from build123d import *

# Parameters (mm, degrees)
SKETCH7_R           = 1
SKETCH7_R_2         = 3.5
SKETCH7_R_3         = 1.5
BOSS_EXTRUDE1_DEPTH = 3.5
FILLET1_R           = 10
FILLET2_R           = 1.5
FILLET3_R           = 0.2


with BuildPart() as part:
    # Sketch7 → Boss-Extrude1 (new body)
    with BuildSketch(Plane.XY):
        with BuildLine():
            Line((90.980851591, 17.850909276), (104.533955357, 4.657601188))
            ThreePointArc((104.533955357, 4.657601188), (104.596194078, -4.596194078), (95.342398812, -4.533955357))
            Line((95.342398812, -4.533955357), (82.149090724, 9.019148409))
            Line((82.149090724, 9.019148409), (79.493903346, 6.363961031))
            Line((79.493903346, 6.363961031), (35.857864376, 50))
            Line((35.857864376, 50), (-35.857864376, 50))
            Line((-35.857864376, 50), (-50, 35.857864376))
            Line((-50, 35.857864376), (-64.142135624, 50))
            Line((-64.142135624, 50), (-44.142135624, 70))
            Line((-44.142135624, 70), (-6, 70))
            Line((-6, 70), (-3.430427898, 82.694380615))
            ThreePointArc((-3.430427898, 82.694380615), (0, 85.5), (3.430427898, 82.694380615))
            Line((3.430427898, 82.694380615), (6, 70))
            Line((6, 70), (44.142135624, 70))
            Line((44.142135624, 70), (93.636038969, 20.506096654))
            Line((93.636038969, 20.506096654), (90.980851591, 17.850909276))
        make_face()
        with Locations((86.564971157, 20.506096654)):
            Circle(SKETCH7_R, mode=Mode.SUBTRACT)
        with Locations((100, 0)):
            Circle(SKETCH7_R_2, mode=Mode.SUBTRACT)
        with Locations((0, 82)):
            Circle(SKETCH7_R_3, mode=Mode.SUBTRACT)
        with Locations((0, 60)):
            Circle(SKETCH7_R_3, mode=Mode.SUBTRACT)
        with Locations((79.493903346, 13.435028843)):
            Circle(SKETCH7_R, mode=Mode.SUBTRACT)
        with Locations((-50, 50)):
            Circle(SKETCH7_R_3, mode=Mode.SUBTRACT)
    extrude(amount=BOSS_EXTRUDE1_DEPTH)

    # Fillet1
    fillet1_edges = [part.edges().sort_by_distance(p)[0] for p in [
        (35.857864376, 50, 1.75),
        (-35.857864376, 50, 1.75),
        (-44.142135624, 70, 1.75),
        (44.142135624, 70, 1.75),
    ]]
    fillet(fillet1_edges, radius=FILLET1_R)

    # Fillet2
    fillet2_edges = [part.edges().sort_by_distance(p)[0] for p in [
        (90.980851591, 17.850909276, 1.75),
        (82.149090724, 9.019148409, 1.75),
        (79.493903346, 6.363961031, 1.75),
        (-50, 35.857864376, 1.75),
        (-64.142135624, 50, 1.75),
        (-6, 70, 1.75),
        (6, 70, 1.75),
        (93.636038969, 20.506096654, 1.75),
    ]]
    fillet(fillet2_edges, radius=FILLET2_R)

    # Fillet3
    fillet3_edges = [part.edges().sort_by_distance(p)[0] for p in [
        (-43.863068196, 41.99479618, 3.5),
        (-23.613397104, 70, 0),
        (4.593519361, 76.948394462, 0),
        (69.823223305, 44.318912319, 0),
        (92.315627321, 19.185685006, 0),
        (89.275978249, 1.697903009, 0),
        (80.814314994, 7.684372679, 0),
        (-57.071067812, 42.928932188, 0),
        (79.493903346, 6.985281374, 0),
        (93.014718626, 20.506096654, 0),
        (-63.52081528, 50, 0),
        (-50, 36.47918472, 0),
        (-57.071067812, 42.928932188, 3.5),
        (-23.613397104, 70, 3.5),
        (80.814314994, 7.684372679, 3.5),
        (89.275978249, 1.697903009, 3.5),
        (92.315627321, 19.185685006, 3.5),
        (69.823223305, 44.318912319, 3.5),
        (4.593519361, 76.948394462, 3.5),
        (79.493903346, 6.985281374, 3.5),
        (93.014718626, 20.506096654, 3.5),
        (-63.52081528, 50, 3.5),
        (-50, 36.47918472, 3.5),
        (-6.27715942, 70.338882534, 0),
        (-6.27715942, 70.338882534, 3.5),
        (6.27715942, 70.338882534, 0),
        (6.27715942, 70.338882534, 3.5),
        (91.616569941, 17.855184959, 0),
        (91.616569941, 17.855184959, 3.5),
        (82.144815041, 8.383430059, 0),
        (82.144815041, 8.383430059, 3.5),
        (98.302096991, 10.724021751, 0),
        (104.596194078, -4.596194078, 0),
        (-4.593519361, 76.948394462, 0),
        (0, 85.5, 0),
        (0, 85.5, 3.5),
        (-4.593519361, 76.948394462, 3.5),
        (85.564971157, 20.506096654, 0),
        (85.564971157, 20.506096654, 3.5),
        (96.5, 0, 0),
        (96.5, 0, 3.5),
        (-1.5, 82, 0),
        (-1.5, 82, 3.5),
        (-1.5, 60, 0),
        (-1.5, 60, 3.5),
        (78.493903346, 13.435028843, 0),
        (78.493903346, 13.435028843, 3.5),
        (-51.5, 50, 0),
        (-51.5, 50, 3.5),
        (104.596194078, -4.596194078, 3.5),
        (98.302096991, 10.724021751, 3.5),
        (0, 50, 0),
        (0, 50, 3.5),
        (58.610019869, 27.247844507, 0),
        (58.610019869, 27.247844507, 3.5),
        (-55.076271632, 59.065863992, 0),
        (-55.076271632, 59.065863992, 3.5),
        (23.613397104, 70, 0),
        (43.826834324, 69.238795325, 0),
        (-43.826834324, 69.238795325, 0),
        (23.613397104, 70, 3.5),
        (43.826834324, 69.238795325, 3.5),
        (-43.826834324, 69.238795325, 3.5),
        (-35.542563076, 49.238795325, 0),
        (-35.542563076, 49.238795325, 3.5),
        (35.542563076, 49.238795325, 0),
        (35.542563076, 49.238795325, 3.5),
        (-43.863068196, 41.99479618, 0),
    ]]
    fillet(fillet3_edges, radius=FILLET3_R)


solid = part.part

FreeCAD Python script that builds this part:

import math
import FreeCAD as App
import Part
import Sketcher

V = App.Vector


def edges_at(feature, points):
    """Names of the edges that pass closest to the given points."""
    edges = feature.Shape.Edges
    near = lambda p: min(range(len(edges)), key=lambda i: edges[i].distToShape(Part.Vertex(*p))[0])
    return sorted({f"Edge{near(p) + 1}" for p in points})

doc = App.newDocument("Part")
params = doc.addObject("Spreadsheet::Sheet", "Params")
for row, (alias, value) in enumerate([
    ("sketch1_diameter", "7 mm"),
    ("sketch1_diameter2", "2 mm"),
    ("sketch1_diameter3", "3 mm"),
    ("sketch1_radius", "6.5 mm"),
    ("sketch1_length", "20 mm"),
    ("pad1_length", "3.5 mm"),
    ("fillet_radius", "10 mm"),
    ("fillet2_radius", "1.5 mm"),
    ("fillet3_radius", "0.2 mm"),
], start=1):
    params.set(f"A{row}", alias)
    params.set(f"B{row}", "=" + value)
    params.setAlias(f"B{row}", alias)

body = doc.addObject("PartDesign::Body", "Body")

# Sketch on XY plane
sketch1 = body.newObject("Sketcher::SketchObject", "Sketch")
sketch1.AttachmentSupport = (doc.getObject("XY_Plane"), [""])
sketch1.MapMode = "FlatFace"
sketch1.addGeometry(Part.LineSegment(V(104.533955, 4.657601, 0), V(90.980852, 17.850909, 0)), False)
sketch1.addGeometry(Part.LineSegment(V(90.980852, 17.850909, 0), V(93.636039, 20.506097, 0)), False)
sketch1.addGeometry(Part.LineSegment(V(93.636039, 20.506097, 0), V(44.142136, 70, 0)), False)
sketch1.addGeometry(Part.LineSegment(V(44.142136, 70, 0), V(6, 70, 0)), False)
sketch1.addGeometry(Part.LineSegment(V(6, 70, 0), V(3.430428, 82.694381, 0)), False)
sketch1.addGeometry(Part.ArcOfCircle(Part.Circle(V(0, 82, 0), V(0, 0, 1), 3.5), math.radians(11.443087), math.radians(168.556913)), False)
sketch1.addGeometry(Part.LineSegment(V(-3.430428, 82.694381, 0), V(-6, 70, 0)), False)
sketch1.addGeometry(Part.LineSegment(V(-6, 70, 0), V(-44.142136, 70, 0)), False)
sketch1.addGeometry(Part.LineSegment(V(-44.142136, 70, 0), V(-64.142136, 50, 0)), False)
sketch1.addGeometry(Part.LineSegment(V(-64.142136, 50, 0), V(-50, 35.857864, 0)), False)
sketch1.addGeometry(Part.LineSegment(V(-50, 35.857864, 0), V(-35.857864, 50, 0)), False)
sketch1.addGeometry(Part.LineSegment(V(-35.857864, 50, 0), V(35.857864, 50, 0)), False)
sketch1.addGeometry(Part.LineSegment(V(35.857864, 50, 0), V(79.493903, 6.363961, 0)), False)
sketch1.addGeometry(Part.LineSegment(V(79.493903, 6.363961, 0), V(82.149091, 9.019148, 0)), False)
sketch1.addGeometry(Part.LineSegment(V(82.149091, 9.019148, 0), V(95.342399, -4.533955, 0)), False)
sketch1.addGeometry(Part.ArcOfCircle(Part.Circle(V(100, 0, 0), V(0, 0, 1), 6.5), math.radians(-135.770703), math.radians(45.770703)), False)
sketch1.addGeometry(Part.Circle(V(100, 0, 0), V(0, 0, 1), 3.5), False)
sketch1.addGeometry(Part.Circle(V(79.493903, 13.435029, 0), V(0, 0, 1), 1), False)
sketch1.addGeometry(Part.Circle(V(86.564971, 20.506097, 0), V(0, 0, 1), 1), False)
sketch1.addGeometry(Part.Circle(V(0, 60, 0), V(0, 0, 1), 1.5), False)
sketch1.addGeometry(Part.Circle(V(-50, 50, 0), V(0, 0, 1), 1.5), False)
sketch1.addGeometry(Part.Circle(V(0, 82, 0), V(0, 0, 1), 1.5), False)
sketch1.addConstraint(Sketcher.Constraint("Coincident", 0, 2, 1, 1))
sketch1.addConstraint(Sketcher.Constraint("Coincident", 1, 2, 2, 1))
sketch1.addConstraint(Sketcher.Constraint("Coincident", 2, 2, 3, 1))
sketch1.addConstraint(Sketcher.Constraint("Coincident", 3, 2, 4, 1))
sketch1.addConstraint(Sketcher.Constraint("Tangent", 4, 2, 5, 1))
sketch1.addConstraint(Sketcher.Constraint("Tangent", 5, 2, 6, 1))
sketch1.addConstraint(Sketcher.Constraint("Coincident", 6, 2, 7, 1))
sketch1.addConstraint(Sketcher.Constraint("Coincident", 7, 2, 8, 1))
sketch1.addConstraint(Sketcher.Constraint("Coincident", 8, 2, 9, 1))
sketch1.addConstraint(Sketcher.Constraint("Coincident", 9, 2, 10, 1))
sketch1.addConstraint(Sketcher.Constraint("Coincident", 10, 2, 11, 1))
sketch1.addConstraint(Sketcher.Constraint("Coincident", 11, 2, 12, 1))
sketch1.addConstraint(Sketcher.Constraint("Coincident", 12, 2, 13, 1))
sketch1.addConstraint(Sketcher.Constraint("Coincident", 13, 2, 14, 1))
sketch1.addConstraint(Sketcher.Constraint("Tangent", 14, 2, 15, 1))
sketch1.addConstraint(Sketcher.Constraint("Tangent", 15, 2, 0, 1))
sketch1.addConstraint(Sketcher.Constraint("Horizontal", 3))
sketch1.addConstraint(Sketcher.Constraint("Horizontal", 7))
sketch1.addConstraint(Sketcher.Constraint("Horizontal", 11))
sketch1.addConstraint(Sketcher.Constraint("Coincident", 16, 3, 15, 3))
sketch1.addConstraint(Sketcher.Constraint("Coincident", 21, 3, 5, 3))
sketch1.addConstraint(Sketcher.Constraint("Equal", 5, 16))
sketch1.addConstraint(Sketcher.Constraint("Equal", 17, 18))
sketch1.addConstraint(Sketcher.Constraint("Equal", 19, 20))
sketch1.addConstraint(Sketcher.Constraint("Equal", 20, 21))
sketch1.addConstraint(Sketcher.Constraint("Symmetric", 4, 2, 5, 2, -2))
sketch1.addConstraint(Sketcher.Constraint("Symmetric", 2, 2, 7, 2, -2))
sketch1.addConstraint(Sketcher.Constraint("PointOnObject", 15, 3, -1))
sketch1.addConstraint(Sketcher.Constraint("PointOnObject", 19, 3, -2))
sketch1.addConstraint(Sketcher.Constraint("Perpendicular", 1, 2))
sketch1.addConstraint(Sketcher.Constraint("Perpendicular", 2, 8))
sketch1.addConstraint(Sketcher.Constraint("Perpendicular", 8, 9))
sketch1.addConstraint(Sketcher.Constraint("Perpendicular", 9, 10))
sketch1.addConstraint(Sketcher.Constraint("Perpendicular", 10, 12))
sketch1.addConstraint(Sketcher.Constraint("Perpendicular", 12, 13))
sketch1.addConstraint(Sketcher.Constraint("Horizontal", 18, 3, 1, 2))
sketch1.addConstraint(Sketcher.Constraint("Horizontal", 20, 3, 8, 2))
sketch1.addConstraint(Sketcher.Constraint("Horizontal", 8, 2, 10, 2))
sketch1.addConstraint(Sketcher.Constraint("Vertical", 20, 3, 9, 2))
sketch1.addConstraint(Sketcher.Constraint("Vertical", 17, 3, 12, 2))
sketch1.addConstraint(Sketcher.Constraint("Equal", 9, 10))
sketch1.addConstraint(Sketcher.Constraint("Equal", 1, 13))
sketch1.addConstraint(Sketcher.Constraint("Equal", 0, 14))
sketch1.addConstraint(Sketcher.Constraint("Diameter", 16, 7.0))
sketch1.addConstraint(Sketcher.Constraint("Diameter", 17, 2.0))
sketch1.addConstraint(Sketcher.Constraint("Diameter", 19, 3.0))
sketch1.addConstraint(Sketcher.Constraint("Radius", 15, 6.5))
sketch1.addConstraint(Sketcher.Constraint("Distance", 9, 20.0))
sketch1.addConstraint(Sketcher.Constraint("DistanceY", -1, 1, 5, 3, 82.0))
sketch1.addConstraint(Sketcher.Constraint("DistanceX", -1, 1, 15, 3, 100.0))
sketch1.addConstraint(Sketcher.Constraint("DistanceY", -1, 1, 19, 3, 60.0))
sketch1.addConstraint(Sketcher.Constraint("DistanceX", 20, 3, -1, 1, 50.0))
sketch1.addConstraint(Sketcher.Constraint("DistanceY", -1, 1, 20, 3, 50.0))
sketch1.addConstraint(Sketcher.Constraint("DistanceY", -1, 1, 2, 2, 70.0))
sketch1.addConstraint(Sketcher.Constraint("DistanceX", -1, 1, 3, 2, 6.0))
sketch1.addConstraint(Sketcher.Constraint("DistanceX", 11, 1, 11, 2, 71.715729))
sketch1.addConstraint(Sketcher.Constraint("DistanceX", -1, 1, 14, 2, 95.342399))
sketch1.addConstraint(Sketcher.Constraint("Distance", 0, 18.91428))
sketch1.addConstraint(Sketcher.Constraint("DistanceY", -1, 1, 17, 3, 13.435029))
sketch1.addConstraint(Sketcher.Constraint("DistanceX", -1, 1, 18, 3, 86.564971))
sketch1.setExpression("Constraints[43]", "Params.sketch1_diameter")
sketch1.setExpression("Constraints[44]", "Params.sketch1_diameter2")
sketch1.setExpression("Constraints[45]", "Params.sketch1_diameter3")
sketch1.setExpression("Constraints[46]", "Params.sketch1_radius")
sketch1.setExpression("Constraints[47]", "Params.sketch1_length")
pad1 = body.newObject("PartDesign::Pad", "Pad")
pad1.Profile = sketch1
pad1.setExpression("Length", "Params.pad1_length")
doc.recompute()

fillet = body.newObject("PartDesign::Fillet", "Fillet")
fillet.Base = (pad1, edges_at(pad1, [
    (35.858, 50, 1.75),
    (-35.858, 50, 1.75),
    (-44.142, 70, 1.75),
    (44.142, 70, 1.75),
]))
fillet.setExpression("Radius", "Params.fillet_radius")
doc.recompute()

fillet2 = body.newObject("PartDesign::Fillet", "Fillet001")
fillet2.Base = (fillet, edges_at(fillet, [
    (90.981, 17.851, 1.75),
    (82.149, 9.019, 1.75),
    (79.494, 6.364, 1.75),
    (-50, 35.858, 1.75),
    (-64.142, 50, 1.75),
    (-6, 70, 1.75),
    (6, 70, 1.75),
    (93.636, 20.506, 1.75),
]))
fillet2.setExpression("Radius", "Params.fillet2_radius")
doc.recompute()

fillet3 = body.newObject("PartDesign::Fillet", "Fillet002")
fillet3.Base = (fillet2, edges_at(fillet2, [
    (-43.863, 41.995, 3.5),
    (-23.613, 70, 0),
    (4.594, 76.948, 0),
    (69.823, 44.319, 0),
    (92.316, 19.186, 0),
    (89.276, 1.698, 0),
    (80.814, 7.684, 0),
    (-57.071, 42.929, 0),
    (79.494, 6.985, 0),
    (93.015, 20.506, 0),
    (-63.521, 50, 0),
    (-50, 36.479, 0),
    (-57.071, 42.929, 3.5),
    (-23.613, 70, 3.5),
    (80.814, 7.684, 3.5),
    (89.276, 1.698, 3.5),
    (92.316, 19.186, 3.5),
    (69.823, 44.319, 3.5),
    (4.594, 76.948, 3.5),
    (79.494, 6.985, 3.5),
    (93.015, 20.506, 3.5),
    (-63.521, 50, 3.5),
    (-50, 36.479, 3.5),
    (-6.277, 70.339, 0),
    (-6.277, 70.339, 3.5),
    (6.277, 70.339, 0),
    (6.277, 70.339, 3.5),
    (91.617, 17.855, 0),
    (91.617, 17.855, 3.5),
    (82.145, 8.383, 0),
    (82.145, 8.383, 3.5),
    (98.302, 10.724, 0),
    (104.596, -4.596, 0),
    (-4.594, 76.948, 0),
    (0, 85.5, 0),
    (0, 85.5, 3.5),
    (-4.594, 76.948, 3.5),
    (85.565, 20.506, 0),
    (85.565, 20.506, 3.5),
    (96.5, 0, 0),
    (96.5, 0, 3.5),
    (-1.5, 82, 0),
    (-1.5, 82, 3.5),
    (-1.5, 60, 0),
    (-1.5, 60, 3.5),
    (78.494, 13.435, 0),
    (78.494, 13.435, 3.5),
    (-51.5, 50, 0),
    (-51.5, 50, 3.5),
    (104.596, -4.596, 3.5),
    (98.302, 10.724, 3.5),
    (0, 50, 0),
    (0, 50, 3.5),
    (58.61, 27.248, 0),
    (58.61, 27.248, 3.5),
    (-55.076, 59.066, 0),
    (-55.076, 59.066, 3.5),
    (23.613, 70, 0),
    (43.827, 69.239, 0),
    (-43.827, 69.239, 0),
    (23.613, 70, 3.5),
    (43.827, 69.239, 3.5),
    (-43.827, 69.239, 3.5),
    (-35.543, 49.239, 0),
    (-35.543, 49.239, 3.5),
    (35.543, 49.239, 0),
    (35.543, 49.239, 3.5),
    (-43.863, 41.995, 0),
]))
fillet3.setExpression("Radius", "Params.fillet3_radius")

doc.recompute()
